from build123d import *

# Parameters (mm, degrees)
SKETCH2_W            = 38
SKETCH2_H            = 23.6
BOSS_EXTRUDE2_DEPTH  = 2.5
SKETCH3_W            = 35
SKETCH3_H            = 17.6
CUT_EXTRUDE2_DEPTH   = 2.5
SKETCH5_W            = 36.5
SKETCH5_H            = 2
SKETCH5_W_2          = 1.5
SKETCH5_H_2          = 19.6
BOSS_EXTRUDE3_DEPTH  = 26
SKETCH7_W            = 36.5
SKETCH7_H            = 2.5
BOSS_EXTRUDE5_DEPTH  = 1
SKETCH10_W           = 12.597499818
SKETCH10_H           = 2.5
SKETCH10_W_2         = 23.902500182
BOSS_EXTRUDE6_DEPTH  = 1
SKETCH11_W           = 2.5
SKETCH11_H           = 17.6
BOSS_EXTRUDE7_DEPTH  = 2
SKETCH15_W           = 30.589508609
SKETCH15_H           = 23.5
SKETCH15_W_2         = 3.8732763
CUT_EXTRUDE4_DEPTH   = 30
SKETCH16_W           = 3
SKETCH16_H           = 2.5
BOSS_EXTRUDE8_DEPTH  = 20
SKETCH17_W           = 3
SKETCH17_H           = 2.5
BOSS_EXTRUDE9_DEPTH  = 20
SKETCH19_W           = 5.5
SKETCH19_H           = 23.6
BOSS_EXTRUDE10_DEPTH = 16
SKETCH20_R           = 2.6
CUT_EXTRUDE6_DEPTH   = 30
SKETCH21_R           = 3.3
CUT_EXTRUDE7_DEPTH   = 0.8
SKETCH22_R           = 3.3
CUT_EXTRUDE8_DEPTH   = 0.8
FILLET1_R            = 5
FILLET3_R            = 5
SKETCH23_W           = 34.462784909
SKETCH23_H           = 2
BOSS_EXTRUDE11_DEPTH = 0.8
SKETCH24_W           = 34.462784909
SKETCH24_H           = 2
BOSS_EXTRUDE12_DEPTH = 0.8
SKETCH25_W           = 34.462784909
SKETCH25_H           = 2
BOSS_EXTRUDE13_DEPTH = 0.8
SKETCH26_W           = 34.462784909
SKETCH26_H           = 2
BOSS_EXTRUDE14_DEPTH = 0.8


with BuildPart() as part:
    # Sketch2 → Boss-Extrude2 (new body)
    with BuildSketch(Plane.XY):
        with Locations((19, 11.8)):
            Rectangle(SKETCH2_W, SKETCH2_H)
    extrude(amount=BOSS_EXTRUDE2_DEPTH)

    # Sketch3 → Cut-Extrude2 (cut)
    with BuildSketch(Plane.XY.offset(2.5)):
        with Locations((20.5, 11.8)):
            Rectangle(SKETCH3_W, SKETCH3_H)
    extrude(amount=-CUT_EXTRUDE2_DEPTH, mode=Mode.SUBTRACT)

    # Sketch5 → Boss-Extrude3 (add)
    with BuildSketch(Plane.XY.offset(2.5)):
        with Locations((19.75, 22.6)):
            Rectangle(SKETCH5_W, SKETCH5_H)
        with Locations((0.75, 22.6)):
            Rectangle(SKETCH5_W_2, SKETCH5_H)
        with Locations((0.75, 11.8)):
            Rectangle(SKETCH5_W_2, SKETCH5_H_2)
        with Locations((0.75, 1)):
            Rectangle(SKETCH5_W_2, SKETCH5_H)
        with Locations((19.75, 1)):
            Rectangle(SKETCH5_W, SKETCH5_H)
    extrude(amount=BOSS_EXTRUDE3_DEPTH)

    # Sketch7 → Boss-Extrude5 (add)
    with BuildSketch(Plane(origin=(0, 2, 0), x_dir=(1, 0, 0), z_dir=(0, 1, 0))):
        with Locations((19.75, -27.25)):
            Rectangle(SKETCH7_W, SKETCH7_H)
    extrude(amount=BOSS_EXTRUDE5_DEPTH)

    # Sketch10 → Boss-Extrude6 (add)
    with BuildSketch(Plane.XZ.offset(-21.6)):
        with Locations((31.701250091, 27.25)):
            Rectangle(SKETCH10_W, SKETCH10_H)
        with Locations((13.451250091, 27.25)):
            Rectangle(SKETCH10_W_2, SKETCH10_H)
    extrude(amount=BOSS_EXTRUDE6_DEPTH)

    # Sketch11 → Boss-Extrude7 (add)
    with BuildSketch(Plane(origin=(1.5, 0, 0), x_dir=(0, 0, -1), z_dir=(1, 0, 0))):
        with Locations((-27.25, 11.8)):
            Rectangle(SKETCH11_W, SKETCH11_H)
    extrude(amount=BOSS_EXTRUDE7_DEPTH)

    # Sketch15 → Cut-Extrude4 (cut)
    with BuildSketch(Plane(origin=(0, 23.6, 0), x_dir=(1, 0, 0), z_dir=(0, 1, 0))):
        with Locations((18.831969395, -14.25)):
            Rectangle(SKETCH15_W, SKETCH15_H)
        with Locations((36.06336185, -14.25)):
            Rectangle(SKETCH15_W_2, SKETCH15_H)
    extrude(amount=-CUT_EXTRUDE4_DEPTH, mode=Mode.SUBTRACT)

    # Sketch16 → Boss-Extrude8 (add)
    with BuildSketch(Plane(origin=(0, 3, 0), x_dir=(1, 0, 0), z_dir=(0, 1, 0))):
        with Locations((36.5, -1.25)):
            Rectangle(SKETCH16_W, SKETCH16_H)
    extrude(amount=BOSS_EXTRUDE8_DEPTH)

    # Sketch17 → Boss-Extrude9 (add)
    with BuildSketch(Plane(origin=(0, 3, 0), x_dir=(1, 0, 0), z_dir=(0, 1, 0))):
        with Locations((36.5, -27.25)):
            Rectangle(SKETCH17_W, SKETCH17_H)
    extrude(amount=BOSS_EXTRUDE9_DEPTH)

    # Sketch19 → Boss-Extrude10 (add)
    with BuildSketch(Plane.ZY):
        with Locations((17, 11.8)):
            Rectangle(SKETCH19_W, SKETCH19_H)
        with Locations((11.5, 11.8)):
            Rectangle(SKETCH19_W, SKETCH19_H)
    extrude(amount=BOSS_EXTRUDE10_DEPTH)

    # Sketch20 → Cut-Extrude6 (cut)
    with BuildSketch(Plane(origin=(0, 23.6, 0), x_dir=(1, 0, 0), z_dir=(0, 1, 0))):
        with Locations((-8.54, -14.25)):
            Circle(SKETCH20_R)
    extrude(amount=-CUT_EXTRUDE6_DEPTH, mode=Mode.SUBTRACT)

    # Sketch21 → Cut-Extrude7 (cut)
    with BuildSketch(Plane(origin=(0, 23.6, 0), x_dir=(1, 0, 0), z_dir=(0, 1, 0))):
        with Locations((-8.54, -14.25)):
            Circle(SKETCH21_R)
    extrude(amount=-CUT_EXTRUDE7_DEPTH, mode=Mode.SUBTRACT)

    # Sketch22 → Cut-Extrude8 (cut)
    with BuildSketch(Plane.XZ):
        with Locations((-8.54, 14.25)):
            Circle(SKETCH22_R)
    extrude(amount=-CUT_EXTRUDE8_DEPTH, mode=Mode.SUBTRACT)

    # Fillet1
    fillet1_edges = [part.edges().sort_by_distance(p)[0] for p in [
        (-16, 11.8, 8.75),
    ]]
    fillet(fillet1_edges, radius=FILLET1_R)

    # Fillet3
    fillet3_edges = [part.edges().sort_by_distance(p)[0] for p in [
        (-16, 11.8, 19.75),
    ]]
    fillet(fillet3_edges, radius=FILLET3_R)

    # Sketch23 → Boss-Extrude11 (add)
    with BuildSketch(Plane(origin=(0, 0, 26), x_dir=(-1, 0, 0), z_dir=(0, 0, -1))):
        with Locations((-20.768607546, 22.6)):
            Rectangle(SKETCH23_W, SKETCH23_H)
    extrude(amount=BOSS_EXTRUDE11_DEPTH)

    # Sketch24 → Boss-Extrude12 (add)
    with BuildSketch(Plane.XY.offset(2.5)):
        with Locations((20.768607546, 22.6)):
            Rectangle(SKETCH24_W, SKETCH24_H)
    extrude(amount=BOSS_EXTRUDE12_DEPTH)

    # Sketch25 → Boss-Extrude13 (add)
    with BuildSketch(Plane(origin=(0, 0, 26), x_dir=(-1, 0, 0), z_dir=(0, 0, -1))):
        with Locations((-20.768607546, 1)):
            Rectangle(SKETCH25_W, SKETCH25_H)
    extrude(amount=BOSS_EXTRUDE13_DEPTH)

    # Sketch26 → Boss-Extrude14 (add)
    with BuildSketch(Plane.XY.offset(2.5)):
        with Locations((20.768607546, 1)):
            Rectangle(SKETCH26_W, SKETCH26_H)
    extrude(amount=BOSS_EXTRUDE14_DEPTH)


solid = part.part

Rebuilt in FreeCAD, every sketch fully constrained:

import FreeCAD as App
import Part
import Sketcher
from FreeCAD import Vector


def edges_at(feature, points):
    """Names of the edges that pass closest to the given points."""
    edges = feature.Shape.Edges
    near = lambda p: min(range(len(edges)), key=lambda i: edges[i].distToShape(Part.Vertex(*p))[0])
    return sorted({f"Edge{near(p) + 1}" for p in points})

doc = App.newDocument("Part")
params = doc.addObject("Spreadsheet::Sheet", "Params")
for row, (alias, value) in enumerate([
    ("sketch1_width", "38 mm"),
    ("sketch1_height", "23.6 mm"),
    ("pad1_length", "2.5 mm"),
    ("sketch2_width", "35 mm"),
    ("sketch2_height", "17.6 mm"),
    ("pocket1_length", "2.5 mm"),
    ("sketch3_width", "38 mm"),
    ("sketch3_height", "2 mm"),
    ("sketch3_width2", "36.5 mm"),
    ("sketch3_height2", "23.6 mm"),
    ("pad2_length", "26 mm"),
    ("sketch4_width", "36.5 mm"),
    ("sketch4_height", "2.5 mm"),
    ("pad3_length", "1 mm"),
    ("sketch5_width", "36.5 mm"),
    ("sketch5_height", "2.5 mm"),
    ("pad4_length", "1 mm"),
    ("sketch6_width", "17.6 mm"),
    ("sketch6_height", "2.5 mm"),
    ("pad5_length", "2 mm"),
    ("sketch7_height", "23.5 mm"),
    ("pocket2_length", "30 mm"),
    ("sketch8_width", "3 mm"),
    ("sketch8_height", "2.5 mm"),
    ("pad6_length", "20 mm"),
    ("sketch9_width", "3 mm"),
    ("sketch9_height", "2.5 mm"),
    ("pad7_length", "20 mm"),
    ("sketch10_height", "11 mm"),
    ("sketch10_width", "23.6 mm"),
    ("pad8_length", "16 mm"),
    ("sketch11_diameter", "5.2 mm"),
    ("pocket3_length", "30 mm"),
    ("sketch12_diameter", "6.6 mm"),
    ("pocket4_length", "0.8 mm"),
    ("sketch13_diameter", "6.6 mm"),
    ("pocket5_length", "0.8 mm"),
    ("fillet_radius", "5 mm"),
    ("fillet2_radius", "5 mm"),
    ("sketch14_height", "2 mm"),
    ("pad9_length", "0.8 mm"),
    ("sketch15_height", "2 mm"),
    ("pad10_length", "0.8 mm"),
    ("sketch16_height", "2 mm"),
    ("pad11_length", "0.8 mm"),
    ("sketch17_height", "2 mm"),
    ("pad12_length", "0.8 mm"),
], start=1):
    params.set(f"A{row}", alias)
    params.set(f"B{row}", "=" + value)
    params.setAlias(f"B{row}", alias)

body = doc.addObject("PartDesign::Body", "Body")

# Sketch on XY plane
sketch1 = doc.addObject("Sketcher::SketchObject", "Sketch")
body.addObject(sketch1)
sketch1.AttachmentSupport = (doc.XY_Plane, [""])
sketch1.MapMode = "FlatFace"
sketch1.addGeometry(Part.LineSegment(Vector(0, 24, 0), Vector(0, 0, 0)), False)
sketch1.addGeometry(Part.LineSegment(Vector(0, 0, 0), Vector(38, 0, 0)), False)
sketch1.addGeometry(Part.LineSegment(Vector(38, 0, 0), Vector(38, 24, 0)), False)
sketch1.addGeometry(Part.LineSegment(Vector(38, 24, 0), Vector(0, 24, 0)), False)
sketch1.addConstraint(Sketcher.Constraint("Coincident", 0, 2, 1, 1))
sketch1.addConstraint(Sketcher.Constraint("Coincident", 1, 2, 2, 1))
sketch1.addConstraint(Sketcher.Constraint("Coincident", 2, 2, 3, 1))
sketch1.addConstraint(Sketcher.Constraint("Coincident", 3, 2, 0, 1))
sketch1.addConstraint(Sketcher.Constraint("Vertical", 0))
sketch1.addConstraint(Sketcher.Constraint("Horizontal", 1))
sketch1.addConstraint(Sketcher.Constraint("Vertical", 2))
sketch1.addConstraint(Sketcher.Constraint("Horizontal", 3))
sketch1.addConstraint(Sketcher.Constraint("Coincident", 0, 2, -1, 1))
sketch1.addConstraint(Sketcher.Constraint("DistanceX", 1, 1, 1, 2, 38.0))
sketch1.addConstraint(Sketcher.Constraint("DistanceY", 0, 2, 0, 1, 23.6))
sketch1.setExpression("Constraints[9]", "Params.sketch1_width")
sketch1.setExpression("Constraints[10]", "Params.sketch1_height")
pad1 = doc.addObject("PartDesign::Pad", "Pad")
body.addObject(pad1)
pad1.Profile = sketch1
pad1.setExpression("Length", "Params.pad1_length")

# Sketch on XY plane
sketch2 = doc.addObject("Sketcher::SketchObject", "Sketch001")
body.addObject(sketch2)
sketch2.AttachmentSupport = (doc.XY_Plane, [""])
sketch2.MapMode = "FlatFace"
sketch2.AttachmentOffset = App.Placement(Vector(0, 0, 2.5), App.Rotation())
sketch2.addGeometry(Part.LineSegment(Vector(3, 21, 0), Vector(3, 3, 0)), False)
sketch2.addGeometry(Part.LineSegment(Vector(3, 3, 0), Vector(38, 3, 0)), False)
sketch2.addGeometry(Part.LineSegment(Vector(38, 3, 0), Vector(38, 21, 0)), False)
sketch2.addGeometry(Part.LineSegment(Vector(38, 21, 0), Vector(3, 21, 0)), False)
sketch2.addConstraint(Sketcher.Constraint("Coincident", 0, 2, 1, 1))
sketch2.addConstraint(Sketcher.Constraint("Coincident", 1, 2, 2, 1))
sketch2.addConstraint(Sketcher.Constraint("Coincident", 2, 2, 3, 1))
sketch2.addConstraint(Sketcher.Constraint("Coincident", 3, 2, 0, 1))
sketch2.addConstraint(Sketcher.Constraint("Vertical", 0))
sketch2.addConstraint(Sketcher.Constraint("Horizontal", 1))
sketch2.addConstraint(Sketcher.Constraint("Vertical", 2))
sketch2.addConstraint(Sketcher.Constraint("Horizontal", 3))
sketch2.addConstraint(Sketcher.Constraint("DistanceX", 1, 1, 1, 2, 35.0))
sketch2.addConstraint(Sketcher.Constraint("DistanceY", 0, 2, 0, 1, 17.6))
sketch2.addConstraint(Sketcher.Constraint("DistanceX", -1, 1, 0, 2, 3.0))
sketch2.addConstraint(Sketcher.Constraint("DistanceY", -1, 1, 0, 2, 3.0))
sketch2.setExpression("Constraints[8]", "Params.sketch2_width")
sketch2.setExpression("Constraints[9]", "Params.sketch2_height")
pocket1 = doc.addObject("PartDesign::Pocket", "Pocket")
body.addObject(pocket1)
pocket1.Profile = sketch2
pocket1.setExpression("Length", "Params.pocket1_length")

# Sketch on XY plane
sketch3 = doc.addObject("Sketcher::SketchObject", "Sketch002")
body.addObject(sketch3)
sketch3.AttachmentSupport = (doc.XY_Plane, [""])
sketch3.MapMode = "FlatFace"
sketch3.AttachmentOffset = App.Placement(Vector(0, 0, 2.5), App.Rotation())
sketch3.addGeometry(Part.LineSegment(Vector(38, 21.6, 0), Vector(38, 23.6, 0)), False)
sketch3.addGeometry(Part.LineSegment(Vector(38, 23.6, 0), Vector(0, 23.6, 0)), False)
sketch3.addGeometry(Part.LineSegment(Vector(0, 23.6, 0), Vector(0, 0, 0)), False)
sketch3.addGeometry(Part.LineSegment(Vector(0, 0, 0), Vector(38, 0, 0)), False)
sketch3.addGeometry(Part.LineSegment(Vector(38, 0, 0), Vector(38, 2, 0)), False)
sketch3.addGeometry(Part.LineSegment(Vector(38, 2, 0), Vector(1.5, 2, 0)), False)
sketch3.addGeometry(Part.LineSegment(Vector(1.5, 2, 0), Vector(1.5, 21.6, 0)), False)
sketch3.addGeometry(Part.LineSegment(Vector(1.5, 21.6, 0), Vector(38, 21.6, 0)), False)
sketch3.addConstraint(Sketcher.Constraint("Coincident", 0, 2, 1, 1))
sketch3.addConstraint(Sketcher.Constraint("Coincident", 1, 2, 2, 1))
sketch3.addConstraint(Sketcher.Constraint("Coincident", 2, 2, 3, 1))
sketch3.addConstraint(Sketcher.Constraint("Coincident", 3, 2, 4, 1))
sketch3.addConstraint(Sketcher.Constraint("Coincident", 4, 2, 5, 1))
sketch3.addConstraint(Sketcher.Constraint("Coincident", 5, 2, 6, 1))
sketch3.addConstraint(Sketcher.Constraint("Coincident", 6, 2, 7, 1))
sketch3.addConstraint(Sketcher.Constraint("Coincident", 7, 2, 0, 1))
sketch3.addConstraint(Sketcher.Constraint("Vertical", 0))
sketch3.addConstraint(Sketcher.Constraint("Horizontal", 1))
sketch3.addConstraint(Sketcher.Constraint("Vertical", 2))
sketch3.addConstraint(Sketcher.Constraint("Horizontal", 3))
sketch3.addConstraint(Sketcher.Constraint("Vertical", 4))
sketch3.addConstraint(Sketcher.Constraint("Horizontal", 5))
sketch3.addConstraint(Sketcher.Constraint("Vertical", 6))
sketch3.addConstraint(Sketcher.Constraint("Horizontal", 7))
sketch3.addConstraint(Sketcher.Constraint("Coincident", 2, 2, -1, 1))
sketch3.addConstraint(Sketcher.Constraint("Vertical", 0, 2, 3, 2))
sketch3.addConstraint(Sketcher.Constraint("Equal", 0, 4))
sketch3.addConstraint(Sketcher.Constraint("DistanceX", 1, 2, 1, 1, 38.0))
sketch3.addConstraint(Sketcher.Constraint("DistanceY", 0, 1, 0, 2, 2.0))
sketch3.addConstraint(Sketcher.Constraint("DistanceX", 5, 2, 5, 1, 36.5))
sketch3.addConstraint(Sketcher.Constraint("DistanceY", 2, 2, 2, 1, 23.6))
sketch3.setExpression("Constraints[19]", "Params.sketch3_width")
sketch3.setExpression("Constraints[20]", "Params.sketch3_height")
sketch3.setExpression("Constraints[21]", "Params.sketch3_width2")
sketch3.setExpression("Constraints[22]", "Params.sketch3_height2")
pad2 = doc.addObject("PartDesign::Pad", "Pad001")
body.addObject(pad2)
pad2.Profile = sketch3
pad2.setExpression("Length", "Params.pad2_length")

# Sketch on XZ plane
sketch4 = doc.addObject("Sketcher::SketchObject", "Sketch003")
body.addObject(sketch4)
sketch4.AttachmentSupport = (doc.XZ_Plane, [""])
sketch4.MapMode = "FlatFace"
sketch4.AttachmentOffset = App.Placement(Vector(0, 0, -2), App.Rotation())
sketch4.addGeometry(Part.LineSegment(Vector(1.5, 26, 0), Vector(1.5, 28.5, 0)), False)
sketch4.addGeometry(Part.LineSegment(Vector(1.5, 28.5, 0), Vector(38, 28.5, 0)), False)
sketch4.addGeometry(Part.LineSegment(Vector(38, 28.5, 0), Vector(38, 26, 0)), False)
sketch4.addGeometry(Part.LineSegment(Vector(38, 26, 0), Vector(1.5, 26, 0)), False)
sketch4.addConstraint(Sketcher.Constraint("Coincident", 0, 2, 1, 1))
sketch4.addConstraint(Sketcher.Constraint("Coincident", 1, 2, 2, 1))
sketch4.addConstraint(Sketcher.Constraint("Coincident", 2, 2, 3, 1))
sketch4.addConstraint(Sketcher.Constraint("Coincident", 3, 2, 0, 1))
sketch4.addConstraint(Sketcher.Constraint("Vertical", 0))
sketch4.addConstraint(Sketcher.Constraint("Horizontal", 1))
sketch4.addConstraint(Sketcher.Constraint("Vertical", 2))
sketch4.addConstraint(Sketcher.Constraint("Horizontal", 3))
sketch4.addConstraint(Sketcher.Constraint("DistanceX", 1, 1, 1, 2, 36.5))
sketch4.addConstraint(Sketcher.Constraint("DistanceY", 0, 1, 0, 2, 2.5))
sketch4.addConstraint(Sketcher.Constraint("DistanceX", -1, 1, 1, 2, 38.0))
sketch4.addConstraint(Sketcher.Constraint("DistanceY", -1, 1, 2, 2, 26.0))
sketch4.setExpression("Constraints[8]", "Params.sketch4_width")
sketch4.setExpression("Constraints[9]", "Params.sketch4_height")
pad3 = doc.addObject("PartDesign::Pad", "Pad002")
body.addObject(pad3)
pad3.Profile = sketch4
pad3.setExpression("Length", "Params.pad3_length")
pad3.Reversed = True

# Sketch on XZ plane
sketch5 = doc.addObject("Sketcher::SketchObject", "Sketch004")
body.addObject(sketch5)
sketch5.AttachmentSupport = (doc.XZ_Plane, [""])
sketch5.MapMode = "FlatFace"
sketch5.AttachmentOffset = App.Placement(Vector(0, 0, -21.6), App.Rotation())
sketch5.addGeometry(Part.LineSegment(Vector(38, 26, 0), Vector(38, 28.5, 0)), False)
sketch5.addGeometry(Part.LineSegment(Vector(38, 28.5, 0), Vector(1.5, 28.5, 0)), False)
sketch5.addGeometry(Part.LineSegment(Vector(1.5, 28.5, 0), Vector(1.5, 26, 0)), False)
sketch5.addGeometry(Part.LineSegment(Vector(1.5, 26, 0), Vector(38, 26, 0)), False)
sketch5.addConstraint(Sketcher.Constraint("Coincident", 0, 2, 1, 1))
sketch5.addConstraint(Sketcher.Constraint("Coincident", 1, 2, 2, 1))
sketch5.addConstraint(Sketcher.Constraint("Coincident", 2, 2, 3, 1))
sketch5.addConstraint(Sketcher.Constraint("Coincident", 3, 2, 0, 1))
sketch5.addConstraint(Sketcher.Constraint("Vertical", 0))
sketch5.addConstraint(Sketcher.Constraint("Horizontal", 1))
sketch5.addConstraint(Sketcher.Constraint("Vertical", 2))
sketch5.addConstraint(Sketcher.Constraint("Horizontal", 3))
sketch5.addConstraint(Sketcher.Constraint("DistanceX", 1, 2, 1, 1, 36.5))
sketch5.addConstraint(Sketcher.Constraint("DistanceY", 0, 1, 0, 2, 2.5))
sketch5.addConstraint(Sketcher.Constraint("DistanceX", -1, 1, 0, 2, 38.0))
sketch5.addConstraint(Sketcher.Constraint("DistanceY", -1, 1, 2, 2, 26.0))
sketch5.setExpression("Constraints[8]", "Params.sketch5_width")
sketch5.setExpression("Constraints[9]", "Params.sketch5_height")
pad4 = doc.addObject("PartDesign::Pad", "Pad003")
body.addObject(pad4)
pad4.Profile = sketch5
pad4.setExpression("Length", "Params.pad4_length")

# Sketch on YZ plane
sketch6 = doc.addObject("Sketcher::SketchObject", "Sketch005")
body.addObject(sketch6)
sketch6.AttachmentSupport = (doc.YZ_Plane, [""])
sketch6.MapMode = "FlatFace"
sketch6.AttachmentOffset = App.Placement(Vector(0, 0, 1.5), App.Rotation())
sketch6.addGeometry(Part.LineSegment(Vector(20.6, 28.5, 0), Vector(3, 28.5, 0)), False)
sketch6.addGeometry(Part.LineSegment(Vector(3, 28.5, 0), Vector(3, 26, 0)), False)
sketch6.addGeometry(Part.LineSegment(Vector(3, 26, 0), Vector(20.6, 26, 0)), False)
sketch6.addGeometry(Part.LineSegment(Vector(20.6, 26, 0), Vector(20.6, 28.5, 0)), False)
sketch6.addConstraint(Sketcher.Constraint("Coincident", 0, 2, 1, 1))
sketch6.addConstraint(Sketcher.Constraint("Coincident", 1, 2, 2, 1))
sketch6.addConstraint(Sketcher.Constraint("Coincident", 2, 2, 3, 1))
sketch6.addConstraint(Sketcher.Constraint("Coincident", 3, 2, 0, 1))
sketch6.addConstraint(Sketcher.Constraint("Horizontal", 0))
sketch6.addConstraint(Sketcher.Constraint("Vertical", 1))
sketch6.addConstraint(Sketcher.Constraint("Horizontal", 2))
sketch6.addConstraint(Sketcher.Constraint("Vertical", 3))
sketch6.addConstraint(Sketcher.Constraint("DistanceX", 0, 2, 0, 1, 17.6))
sketch6.addConstraint(Sketcher.Constraint("DistanceY", 1, 2, 1, 1, 2.5))
sketch6.addConstraint(Sketcher.Constraint("DistanceX", -1, 1, 0, 2, 3.0))
sketch6.addConstraint(Sketcher.Constraint("DistanceY", -1, 1, 1, 2, 26.0))
sketch6.setExpression("Constraints[8]", "Params.sketch6_width")
sketch6.setExpression("Constraints[9]", "Params.sketch6_height")
pad5 = doc.addObject("PartDesign::Pad", "Pad004")
body.addObject(pad5)
pad5.Profile = sketch6
pad5.setExpression("Length", "Params.pad5_length")

# Sketch on XZ plane
sketch7 = doc.addObject("Sketcher::SketchObject", "Sketch006")
body.addObject(sketch7)
sketch7.AttachmentSupport = (doc.XZ_Plane, [""])
sketch7.MapMode = "FlatFace"
sketch7.AttachmentOffset = App.Placement(Vector(0, 0, -23.6), App.Rotation())
sketch7.addGeometry(Part.LineSegment(Vector(4, 2, 0), Vector(4, 26, 0)), False)
sketch7.addGeometry(Part.LineSegment(Vector(4, 26, 0), Vector(38, 26, 0)), False)
sketch7.addGeometry(Part.LineSegment(Vector(38, 26, 0), Vector(38, 2, 0)), False)
sketch7.addGeometry(Part.LineSegment(Vector(38, 2, 0), Vector(4, 2, 0)), False)
sketch7.addConstraint(Sketcher.Constraint("Coincident", 0, 2, 1, 1))
sketch7.addConstraint(Sketcher.Constraint("Coincident", 1, 2, 2, 1))
sketch7.addConstraint(Sketcher.Constraint("Coincident", 2, 2, 3, 1))
sketch7.addConstraint(Sketcher.Constraint("Coincident", 3, 2, 0, 1))
sketch7.addConstraint(Sketcher.Constraint("Vertical", 0))
sketch7.addConstraint(Sketcher.Constraint("Horizontal", 1))
sketch7.addConstraint(Sketcher.Constraint("Vertical", 2))
sketch7.addConstraint(Sketcher.Constraint("Horizontal", 3))
sketch7.addConstraint(Sketcher.Constraint("DistanceY", 0, 1, 0, 2, 23.5))
sketch7.addConstraint(Sketcher.Constraint("DistanceY", -1, 1, 0, 2, 26.0))
sketch7.addConstraint(Sketcher.Constraint("DistanceX", -1, 1, 1, 2, 38.0))
sketch7.addConstraint(Sketcher.Constraint("DistanceX", 1, 1, 1, 2, 34.462785))
sketch7.setExpression("Constraints[8]", "Params.sketch7_height")
pocket2 = doc.addObject("PartDesign::Pocket", "Pocket001")
body.addObject(pocket2)
pocket2.Profile = sketch7
pocket2.setExpression("Length", "Params.pocket2_length")
pocket2.Reversed = True

# Sketch on XZ plane
sketch8 = doc.addObject("Sketcher::SketchObject", "Sketch007")
body.addObject(sketch8)
sketch8.AttachmentSupport = (doc.XZ_Plane, [""])
sketch8.MapMode = "FlatFace"
sketch8.AttachmentOffset = App.Placement(Vector(0, 0, -3), App.Rotation())
sketch8.addGeometry(Part.LineSegment(Vector(35, 0, 0), Vector(35, 2.5, 0)), False)
sketch8.addGeometry(Part.LineSegment(Vector(35, 2.5, 0), Vector(38, 2.5, 0)), False)
sketch8.addGeometry(Part.LineSegment(Vector(38, 2.5, 0), Vector(38, 0, 0)), False)
sketch8.addGeometry(Part.LineSegment(Vector(38, 0, 0), Vector(35, 0, 0)), False)
sketch8.addConstraint(Sketcher.Constraint("Coincident", 0, 2, 1, 1))
sketch8.addConstraint(Sketcher.Constraint("Coincident", 1, 2, 2, 1))
sketch8.addConstraint(Sketcher.Constraint("Coincident", 2, 2, 3, 1))
sketch8.addConstraint(Sketcher.Constraint("Coincident", 3, 2, 0, 1))
sketch8.addConstraint(Sketcher.Constraint("Vertical", 0))
sketch8.addConstraint(Sketcher.Constraint("Horizontal", 1))
sketch8.addConstraint(Sketcher.Constraint("Vertical", 2))
sketch8.addConstraint(Sketcher.Constraint("Horizontal", 3))
sketch8.addConstraint(Sketcher.Constraint("PointOnObject", 2, 2, -1))
sketch8.addConstraint(Sketcher.Constraint("DistanceX", 1, 1, 1, 2, 3.0))
sketch8.addConstraint(Sketcher.Constraint("DistanceY", 0, 1, 0, 2, 2.5))
sketch8.addConstraint(Sketcher.Constraint("DistanceX", -1, 1, 0, 2, 35.0))
sketch8.setExpression("Constraints[9]", "Params.sketch8_width")
sketch8.setExpression("Constraints[10]", "Params.sketch8_height")
pad6 = doc.addObject("PartDesign::Pad", "Pad005")
body.addObject(pad6)
pad6.Profile = sketch8
pad6.setExpression("Length", "Params.pad6_length")
pad6.Reversed = True

# Sketch on XZ plane
sketch9 = doc.addObject("Sketcher::SketchObject", "Sketch008")
body.addObject(sketch9)
sketch9.AttachmentSupport = (doc.XZ_Plane, [""])
sketch9.MapMode = "FlatFace"
sketch9.AttachmentOffset = App.Placement(Vector(0, 0, -3), App.Rotation())
sketch9.addGeometry(Part.LineSegment(Vector(35, 26, 0), Vector(35, 28.5, 0)), False)
sketch9.addGeometry(Part.LineSegment(Vector(35, 28.5, 0), Vector(38, 28.5, 0)), False)
sketch9.addGeometry(Part.LineSegment(Vector(38, 28.5, 0), Vector(38, 26, 0)), False)
sketch9.addGeometry(Part.LineSegment(Vector(38, 26, 0), Vector(35, 26, 0)), False)
sketch9.addConstraint(Sketcher.Constraint("Coincident", 0, 2, 1, 1))
sketch9.addConstraint(Sketcher.Constraint("Coincident", 1, 2, 2, 1))
sketch9.addConstraint(Sketcher.Constraint("Coincident", 2, 2, 3, 1))
sketch9.addConstraint(Sketcher.Constraint("Coincident", 3, 2, 0, 1))
sketch9.addConstraint(Sketcher.Constraint("Vertical", 0))
sketch9.addConstraint(Sketcher.Constraint("Horizontal", 1))
sketch9.addConstraint(Sketcher.Constraint("Vertical", 2))
sketch9.addConstraint(Sketcher.Constraint("Horizontal", 3))
sketch9.addConstraint(Sketcher.Constraint("DistanceX", 1, 1, 1, 2, 3.0))
sketch9.addConstraint(Sketcher.Constraint("DistanceY", 0, 1, 0, 2, 2.5))
sketch9.addConstraint(Sketcher.Constraint("DistanceX", -1, 1, 0, 2, 35.0))
sketch9.addConstraint(Sketcher.Constraint("DistanceY", -1, 1, 2, 2, 26.0))
sketch9.setExpression("Constraints[8]", "Params.sketch9_width")
sketch9.setExpression("Constraints[9]", "Params.sketch9_height")
pad7 = doc.addObject("PartDesign::Pad", "Pad006")
body.addObject(pad7)
pad7.Profile = sketch9
pad7.setExpression("Length", "Params.pad7_length")
pad7.Reversed = True

# Sketch on YZ plane
sketch10 = doc.addObject("Sketcher::SketchObject", "Sketch009")
body.addObject(sketch10)
sketch10.AttachmentSupport = (doc.YZ_Plane, [""])
sketch10.MapMode = "FlatFace"
sketch10.addGeometry(Part.LineSegment(Vector(0, 20, 0), Vector(24, 20, 0)), False)
sketch10.addGeometry(Part.LineSegment(Vector(24, 20, 0), Vector(24, 9, 0)), False)
sketch10.addGeometry(Part.LineSegment(Vector(24, 9, 0), Vector(0, 9, 0)), False)
sketch10.addGeometry(Part.LineSegment(Vector(0, 9, 0), Vector(0, 20, 0)), False)
sketch10.addConstraint(Sketcher.Constraint("Coincident", 0, 2, 1, 1))
sketch10.addConstraint(Sketcher.Constraint("Coincident", 1, 2, 2, 1))
sketch10.addConstraint(Sketcher.Constraint("Coincident", 2, 2, 3, 1))
sketch10.addConstraint(Sketcher.Constraint("Coincident", 3, 2, 0, 1))
sketch10.addConstraint(Sketcher.Constraint("Horizontal", 0))
sketch10.addConstraint(Sketcher.Constraint("Vertical", 1))
sketch10.addConstraint(Sketcher.Constraint("Horizontal", 2))
sketch10.addConstraint(Sketcher.Constraint("Vertical", 3))
sketch10.addConstraint(Sketcher.Constraint("PointOnObject", 2, 2, -2))
sketch10.addConstraint(Sketcher.Constraint("DistanceY", 1, 2, 1, 1, 11.0))
sketch10.addConstraint(Sketcher.Constraint("DistanceX", 0, 1, 0, 2, 23.6))
sketch10.addConstraint(Sketcher.Constraint("DistanceY", -1, 1, 0, 2, 19.75))
sketch10.setExpression("Constraints[9]", "Params.sketch10_height")
sketch10.setExpression("Constraints[10]", "Params.sketch10_width")
pad8 = doc.addObject("PartDesign::Pad", "Pad007")
body.addObject(pad8)
pad8.Profile = sketch10
pad8.setExpression("Length", "Params.pad8_length")
pad8.Reversed = True

# Sketch on XZ plane
sketch11 = doc.addObject("Sketcher::SketchObject", "Sketch010")
body.addObject(sketch11)
sketch11.AttachmentSupport = (doc.XZ_Plane, [""])
sketch11.MapMode = "FlatFace"
sketch11.AttachmentOffset = App.Placement(Vector(0, 0, -23.6), App.Rotation())
sketch11.addGeometry(Part.Circle(Vector(-8.5, 14.2, 0), Vector(0, 0, 1), 2.6), False)
sketch11.addConstraint(Sketcher.Constraint("Diameter", 0, 5.2))
sketch11.addConstraint(Sketcher.Constraint("DistanceX", 0, 3, -1, 1, 8.54))
sketch11.addConstraint(Sketcher.Constraint("DistanceY", -1, 1, 0, 3, 14.25))
sketch11.setExpression("Constraints[0]", "Params.sketch11_diameter")
pocket3 = doc.addObject("PartDesign::Pocket", "Pocket002")
body.addObject(pocket3)
pocket3.Profile = sketch11
pocket3.setExpression("Length", "Params.pocket3_length")
pocket3.Reversed = True

# Sketch on XZ plane
sketch12 = doc.addObject("Sketcher::SketchObject", "Sketch011")
body.addObject(sketch12)
sketch12.AttachmentSupport = (doc.XZ_Plane, [""])
sketch12.MapMode = "FlatFace"
sketch12.AttachmentOffset = App.Placement(Vector(0, 0, -23.6), App.Rotation())
sketch12.addGeometry(Part.Circle(Vector(-8.5, 14.2, 0), Vector(0, 0, 1), 3.3), False)
sketch12.addConstraint(Sketcher.Constraint("Diameter", 0, 6.6))
sketch12.addConstraint(Sketcher.Constraint("DistanceX", 0, 3, -1, 1, 8.54))
sketch12.addConstraint(Sketcher.Constraint("DistanceY", -1, 1, 0, 3, 14.25))
sketch12.setExpression("Constraints[0]", "Params.sketch12_diameter")
pocket4 = doc.addObject("PartDesign::Pocket", "Pocket003")
body.addObject(pocket4)
pocket4.Profile = sketch12
pocket4.setExpression("Length", "Params.pocket4_length")
pocket4.Reversed = True

# Sketch on XZ plane
sketch13 = doc.addObject("Sketcher::SketchObject", "Sketch012")
body.addObject(sketch13)
sketch13.AttachmentSupport = (doc.XZ_Plane, [""])
sketch13.MapMode = "FlatFace"
sketch13.addGeometry(Part.Circle(Vector(-8.5, 14.2, 0), Vector(0, 0, 1), 3.3), False)
sketch13.addConstraint(Sketcher.Constraint("Diameter", 0, 6.6))
sketch13.addConstraint(Sketcher.Constraint("DistanceX", 0, 3, -1, 1, 8.54))
sketch13.addConstraint(Sketcher.Constraint("DistanceY", -1, 1, 0, 3, 14.25))
sketch13.setExpression("Constraints[0]", "Params.sketch13_diameter")
pocket5 = doc.addObject("PartDesign::Pocket", "Pocket004")
body.addObject(pocket5)
pocket5.Profile = sketch13
pocket5.setExpression("Length", "Params.pocket5_length")
doc.recompute()

fillet = doc.addObject("PartDesign::Fillet", "Fillet")
body.addObject(fillet)
fillet.Base = (pocket5, edges_at(pocket5, [(-16, 11.8, 8.75)]))
fillet.setExpression("Radius", "Params.fillet_radius")
doc.recompute()

fillet2 = doc.addObject("PartDesign::Fillet", "Fillet001")
body.addObject(fillet2)
fillet2.Base = (fillet, edges_at(fillet, [(-16, 11.8, 19.75)]))
fillet2.setExpression("Radius", "Params.fillet2_radius")

# Sketch on XY plane
sketch14 = doc.addObject("Sketcher::SketchObject", "Sketch013")
body.addObject(sketch14)
sketch14.AttachmentSupport = (doc.XY_Plane, [""])
sketch14.MapMode = "FlatFace"
sketch14.AttachmentOffset = App.Placement(Vector(0, 0, 26), App.Rotation())
sketch14.addGeometry(Part.LineSegment(Vector(38, 23.6, 0), Vector(38, 21.6, 0)), False)
sketch14.addGeometry(Part.LineSegment(Vector(38, 21.6, 0), Vector(3.5, 21.6, 0)), False)
sketch14.addGeometry(Part.LineSegment(Vector(3.5, 21.6, 0), Vector(3.5, 23.6, 0)), False)
sketch14.addGeometry(Part.LineSegment(Vector(3.5, 23.6, 0), Vector(38, 23.6, 0)), False)
sketch14.addConstraint(Sketcher.Constraint("Coincident", 0, 2, 1, 1))
sketch14.addConstraint(Sketcher.Constraint("Coincident", 1, 2, 2, 1))
sketch14.addConstraint(Sketcher.Constraint("Coincident", 2, 2, 3, 1))
sketch14.addConstraint(Sketcher.Constraint("Coincident", 3, 2, 0, 1))
sketch14.addConstraint(Sketcher.Constraint("Vertical", 0))
sketch14.addConstraint(Sketcher.Constraint("Horizontal", 1))
sketch14.addConstraint(Sketcher.Constraint("Vertical", 2))
sketch14.addConstraint(Sketcher.Constraint("Horizontal", 3))
sketch14.addConstraint(Sketcher.Constraint("DistanceY", 0, 2, 0, 1, 2.0))
sketch14.addConstraint(Sketcher.Constraint("DistanceX", -1, 1, 0, 2, 38.0))
sketch14.addConstraint(Sketcher.Constraint("DistanceY", -1, 1, 0, 2, 21.6))
sketch14.addConstraint(Sketcher.Constraint("DistanceX", 1, 2, 1, 1, 34.462785))
sketch14.setExpression("Constraints[8]", "Params.sketch14_height")
pad9 = doc.addObject("PartDesign::Pad", "Pad008")
body.addObject(pad9)
pad9.Profile = sketch14
pad9.setExpression("Length", "Params.pad9_length")
pad9.Reversed = True

# Sketch on XY plane
sketch15 = doc.addObject("Sketcher::SketchObject", "Sketch014")
body.addObject(sketch15)
sketch15.AttachmentSupport = (doc.XY_Plane, [""])
sketch15.MapMode = "FlatFace"
sketch15.AttachmentOffset = App.Placement(Vector(0, 0, 2.5), App.Rotation())
sketch15.addGeometry(Part.LineSegment(Vector(3.5, 23.6, 0), Vector(3.5, 21.6, 0)), False)
sketch15.addGeometry(Part.LineSegment(Vector(3.5, 21.6, 0), Vector(38, 21.6, 0)), False)
sketch15.addGeometry(Part.LineSegment(Vector(38, 21.6, 0), Vector(38, 23.6, 0)), False)
sketch15.addGeometry(Part.LineSegment(Vector(38, 23.6, 0), Vector(3.5, 23.6, 0)), False)
sketch15.addConstraint(Sketcher.Constraint("Coincident", 0, 2, 1, 1))
sketch15.addConstraint(Sketcher.Constraint("Coincident", 1, 2, 2, 1))
sketch15.addConstraint(Sketcher.Constraint("Coincident", 2, 2, 3, 1))
sketch15.addConstraint(Sketcher.Constraint("Coincident", 3, 2, 0, 1))
sketch15.addConstraint(Sketcher.Constraint("Vertical", 0))
sketch15.addConstraint(Sketcher.Constraint("Horizontal", 1))
sketch15.addConstraint(Sketcher.Constraint("Vertical", 2))
sketch15.addConstraint(Sketcher.Constraint("Horizontal", 3))
sketch15.addConstraint(Sketcher.Constraint("DistanceY", 0, 2, 0, 1, 2.0))
sketch15.addConstraint(Sketcher.Constraint("DistanceX", -1, 1, 1, 2, 38.0))
sketch15.addConstraint(Sketcher.Constraint("DistanceY", -1, 1, 0, 2, 21.6))
sketch15.addConstraint(Sketcher.Constraint("DistanceX", 1, 1, 1, 2, 34.462785))
sketch15.setExpression("Constraints[8]", "Params.sketch15_height")
pad10 = doc.addObject("PartDesign::Pad", "Pad009")
body.addObject(pad10)
pad10.Profile = sketch15
pad10.setExpression("Length", "Params.pad10_length")

# Sketch on XY plane
sketch16 = doc.addObject("Sketcher::SketchObject", "Sketch015")
body.addObject(sketch16)
sketch16.AttachmentSupport = (doc.XY_Plane, [""])
sketch16.MapMode = "FlatFace"
sketch16.AttachmentOffset = App.Placement(Vector(0, 0, 26), App.Rotation())
sketch16.addGeometry(Part.LineSegment(Vector(38, 2, 0), Vector(38, 0, 0)), False)
sketch16.addGeometry(Part.LineSegment(Vector(38, 0, 0), Vector(3.5, 0, 0)), False)
sketch16.addGeometry(Part.LineSegment(Vector(3.5, 0, 0), Vector(3.5, 2, 0)), False)
sketch16.addGeometry(Part.LineSegment(Vector(3.5, 2, 0), Vector(38, 2, 0)), False)
sketch16.addConstraint(Sketcher.Constraint("Coincident", 0, 2, 1, 1))
sketch16.addConstraint(Sketcher.Constraint("Coincident", 1, 2, 2, 1))
sketch16.addConstraint(Sketcher.Constraint("Coincident", 2, 2, 3, 1))
sketch16.addConstraint(Sketcher.Constraint("Coincident", 3, 2, 0, 1))
sketch16.addConstraint(Sketcher.Constraint("Vertical", 0))
sketch16.addConstraint(Sketcher.Constraint("Horizontal", 1))
sketch16.addConstraint(Sketcher.Constraint("Vertical", 2))
sketch16.addConstraint(Sketcher.Constraint("Horizontal", 3))
sketch16.addConstraint(Sketcher.Constraint("PointOnObject", 0, 2, -1))
sketch16.addConstraint(Sketcher.Constraint("DistanceY", 0, 2, 0, 1, 2.0))
sketch16.addConstraint(Sketcher.Constraint("DistanceX", -1, 1, 0, 2, 38.0))
sketch16.addConstraint(Sketcher.Constraint("DistanceX", 1, 2, 1, 1, 34.462785))
sketch16.setExpression("Constraints[9]", "Params.sketch16_height")
pad11 = doc.addObject("PartDesign::Pad", "Pad010")
body.addObject(pad11)
pad11.Profile = sketch16
pad11.setExpression("Length", "Params.pad11_length")
pad11.Reversed = True

# Sketch on XY plane
sketch17 = doc.addObject("Sketcher::SketchObject", "Sketch016")
body.addObject(sketch17)
sketch17.AttachmentSupport = (doc.XY_Plane, [""])
sketch17.MapMode = "FlatFace"
sketch17.AttachmentOffset = App.Placement(Vector(0, 0, 2.5), App.Rotation())
sketch17.addGeometry(Part.LineSegment(Vector(3.5, 2, 0), Vector(3.5, 0, 0)), False)
sketch17.addGeometry(Part.LineSegment(Vector(3.5, 0, 0), Vector(38, 0, 0)), False)
sketch17.addGeometry(Part.LineSegment(Vector(38, 0, 0), Vector(38, 2, 0)), False)
sketch17.addGeometry(Part.LineSegment(Vector(38, 2, 0), Vector(3.5, 2, 0)), False)
sketch17.addConstraint(Sketcher.Constraint("Coincident", 0, 2, 1, 1))
sketch17.addConstraint(Sketcher.Constraint("Coincident", 1, 2, 2, 1))
sketch17.addConstraint(Sketcher.Constraint("Coincident", 2, 2, 3, 1))
sketch17.addConstraint(Sketcher.Constraint("Coincident", 3, 2, 0, 1))
sketch17.addConstraint(Sketcher.Constraint("Vertical", 0))
sketch17.addConstraint(Sketcher.Constraint("Horizontal", 1))
sketch17.addConstraint(Sketcher.Constraint("Vertical", 2))
sketch17.addConstraint(Sketcher.Constraint("Horizontal", 3))
sketch17.addConstraint(Sketcher.Constraint("PointOnObject", 0, 2, -1))
sketch17.addConstraint(Sketcher.Constraint("DistanceY", 0, 2, 0, 1, 2.0))
sketch17.addConstraint(Sketcher.Constraint("DistanceX", -1, 1, 1, 2, 38.0))
sketch17.addConstraint(Sketcher.Constraint("DistanceX", 1, 1, 1, 2, 34.462785))
sketch17.setExpression("Constraints[9]", "Params.sketch17_height")
pad12 = doc.addObject("PartDesign::Pad", "Pad011")
body.addObject(pad12)
pad12.Profile = sketch17
pad12.setExpression("Length", "Params.pad12_length")

doc.recompute()
